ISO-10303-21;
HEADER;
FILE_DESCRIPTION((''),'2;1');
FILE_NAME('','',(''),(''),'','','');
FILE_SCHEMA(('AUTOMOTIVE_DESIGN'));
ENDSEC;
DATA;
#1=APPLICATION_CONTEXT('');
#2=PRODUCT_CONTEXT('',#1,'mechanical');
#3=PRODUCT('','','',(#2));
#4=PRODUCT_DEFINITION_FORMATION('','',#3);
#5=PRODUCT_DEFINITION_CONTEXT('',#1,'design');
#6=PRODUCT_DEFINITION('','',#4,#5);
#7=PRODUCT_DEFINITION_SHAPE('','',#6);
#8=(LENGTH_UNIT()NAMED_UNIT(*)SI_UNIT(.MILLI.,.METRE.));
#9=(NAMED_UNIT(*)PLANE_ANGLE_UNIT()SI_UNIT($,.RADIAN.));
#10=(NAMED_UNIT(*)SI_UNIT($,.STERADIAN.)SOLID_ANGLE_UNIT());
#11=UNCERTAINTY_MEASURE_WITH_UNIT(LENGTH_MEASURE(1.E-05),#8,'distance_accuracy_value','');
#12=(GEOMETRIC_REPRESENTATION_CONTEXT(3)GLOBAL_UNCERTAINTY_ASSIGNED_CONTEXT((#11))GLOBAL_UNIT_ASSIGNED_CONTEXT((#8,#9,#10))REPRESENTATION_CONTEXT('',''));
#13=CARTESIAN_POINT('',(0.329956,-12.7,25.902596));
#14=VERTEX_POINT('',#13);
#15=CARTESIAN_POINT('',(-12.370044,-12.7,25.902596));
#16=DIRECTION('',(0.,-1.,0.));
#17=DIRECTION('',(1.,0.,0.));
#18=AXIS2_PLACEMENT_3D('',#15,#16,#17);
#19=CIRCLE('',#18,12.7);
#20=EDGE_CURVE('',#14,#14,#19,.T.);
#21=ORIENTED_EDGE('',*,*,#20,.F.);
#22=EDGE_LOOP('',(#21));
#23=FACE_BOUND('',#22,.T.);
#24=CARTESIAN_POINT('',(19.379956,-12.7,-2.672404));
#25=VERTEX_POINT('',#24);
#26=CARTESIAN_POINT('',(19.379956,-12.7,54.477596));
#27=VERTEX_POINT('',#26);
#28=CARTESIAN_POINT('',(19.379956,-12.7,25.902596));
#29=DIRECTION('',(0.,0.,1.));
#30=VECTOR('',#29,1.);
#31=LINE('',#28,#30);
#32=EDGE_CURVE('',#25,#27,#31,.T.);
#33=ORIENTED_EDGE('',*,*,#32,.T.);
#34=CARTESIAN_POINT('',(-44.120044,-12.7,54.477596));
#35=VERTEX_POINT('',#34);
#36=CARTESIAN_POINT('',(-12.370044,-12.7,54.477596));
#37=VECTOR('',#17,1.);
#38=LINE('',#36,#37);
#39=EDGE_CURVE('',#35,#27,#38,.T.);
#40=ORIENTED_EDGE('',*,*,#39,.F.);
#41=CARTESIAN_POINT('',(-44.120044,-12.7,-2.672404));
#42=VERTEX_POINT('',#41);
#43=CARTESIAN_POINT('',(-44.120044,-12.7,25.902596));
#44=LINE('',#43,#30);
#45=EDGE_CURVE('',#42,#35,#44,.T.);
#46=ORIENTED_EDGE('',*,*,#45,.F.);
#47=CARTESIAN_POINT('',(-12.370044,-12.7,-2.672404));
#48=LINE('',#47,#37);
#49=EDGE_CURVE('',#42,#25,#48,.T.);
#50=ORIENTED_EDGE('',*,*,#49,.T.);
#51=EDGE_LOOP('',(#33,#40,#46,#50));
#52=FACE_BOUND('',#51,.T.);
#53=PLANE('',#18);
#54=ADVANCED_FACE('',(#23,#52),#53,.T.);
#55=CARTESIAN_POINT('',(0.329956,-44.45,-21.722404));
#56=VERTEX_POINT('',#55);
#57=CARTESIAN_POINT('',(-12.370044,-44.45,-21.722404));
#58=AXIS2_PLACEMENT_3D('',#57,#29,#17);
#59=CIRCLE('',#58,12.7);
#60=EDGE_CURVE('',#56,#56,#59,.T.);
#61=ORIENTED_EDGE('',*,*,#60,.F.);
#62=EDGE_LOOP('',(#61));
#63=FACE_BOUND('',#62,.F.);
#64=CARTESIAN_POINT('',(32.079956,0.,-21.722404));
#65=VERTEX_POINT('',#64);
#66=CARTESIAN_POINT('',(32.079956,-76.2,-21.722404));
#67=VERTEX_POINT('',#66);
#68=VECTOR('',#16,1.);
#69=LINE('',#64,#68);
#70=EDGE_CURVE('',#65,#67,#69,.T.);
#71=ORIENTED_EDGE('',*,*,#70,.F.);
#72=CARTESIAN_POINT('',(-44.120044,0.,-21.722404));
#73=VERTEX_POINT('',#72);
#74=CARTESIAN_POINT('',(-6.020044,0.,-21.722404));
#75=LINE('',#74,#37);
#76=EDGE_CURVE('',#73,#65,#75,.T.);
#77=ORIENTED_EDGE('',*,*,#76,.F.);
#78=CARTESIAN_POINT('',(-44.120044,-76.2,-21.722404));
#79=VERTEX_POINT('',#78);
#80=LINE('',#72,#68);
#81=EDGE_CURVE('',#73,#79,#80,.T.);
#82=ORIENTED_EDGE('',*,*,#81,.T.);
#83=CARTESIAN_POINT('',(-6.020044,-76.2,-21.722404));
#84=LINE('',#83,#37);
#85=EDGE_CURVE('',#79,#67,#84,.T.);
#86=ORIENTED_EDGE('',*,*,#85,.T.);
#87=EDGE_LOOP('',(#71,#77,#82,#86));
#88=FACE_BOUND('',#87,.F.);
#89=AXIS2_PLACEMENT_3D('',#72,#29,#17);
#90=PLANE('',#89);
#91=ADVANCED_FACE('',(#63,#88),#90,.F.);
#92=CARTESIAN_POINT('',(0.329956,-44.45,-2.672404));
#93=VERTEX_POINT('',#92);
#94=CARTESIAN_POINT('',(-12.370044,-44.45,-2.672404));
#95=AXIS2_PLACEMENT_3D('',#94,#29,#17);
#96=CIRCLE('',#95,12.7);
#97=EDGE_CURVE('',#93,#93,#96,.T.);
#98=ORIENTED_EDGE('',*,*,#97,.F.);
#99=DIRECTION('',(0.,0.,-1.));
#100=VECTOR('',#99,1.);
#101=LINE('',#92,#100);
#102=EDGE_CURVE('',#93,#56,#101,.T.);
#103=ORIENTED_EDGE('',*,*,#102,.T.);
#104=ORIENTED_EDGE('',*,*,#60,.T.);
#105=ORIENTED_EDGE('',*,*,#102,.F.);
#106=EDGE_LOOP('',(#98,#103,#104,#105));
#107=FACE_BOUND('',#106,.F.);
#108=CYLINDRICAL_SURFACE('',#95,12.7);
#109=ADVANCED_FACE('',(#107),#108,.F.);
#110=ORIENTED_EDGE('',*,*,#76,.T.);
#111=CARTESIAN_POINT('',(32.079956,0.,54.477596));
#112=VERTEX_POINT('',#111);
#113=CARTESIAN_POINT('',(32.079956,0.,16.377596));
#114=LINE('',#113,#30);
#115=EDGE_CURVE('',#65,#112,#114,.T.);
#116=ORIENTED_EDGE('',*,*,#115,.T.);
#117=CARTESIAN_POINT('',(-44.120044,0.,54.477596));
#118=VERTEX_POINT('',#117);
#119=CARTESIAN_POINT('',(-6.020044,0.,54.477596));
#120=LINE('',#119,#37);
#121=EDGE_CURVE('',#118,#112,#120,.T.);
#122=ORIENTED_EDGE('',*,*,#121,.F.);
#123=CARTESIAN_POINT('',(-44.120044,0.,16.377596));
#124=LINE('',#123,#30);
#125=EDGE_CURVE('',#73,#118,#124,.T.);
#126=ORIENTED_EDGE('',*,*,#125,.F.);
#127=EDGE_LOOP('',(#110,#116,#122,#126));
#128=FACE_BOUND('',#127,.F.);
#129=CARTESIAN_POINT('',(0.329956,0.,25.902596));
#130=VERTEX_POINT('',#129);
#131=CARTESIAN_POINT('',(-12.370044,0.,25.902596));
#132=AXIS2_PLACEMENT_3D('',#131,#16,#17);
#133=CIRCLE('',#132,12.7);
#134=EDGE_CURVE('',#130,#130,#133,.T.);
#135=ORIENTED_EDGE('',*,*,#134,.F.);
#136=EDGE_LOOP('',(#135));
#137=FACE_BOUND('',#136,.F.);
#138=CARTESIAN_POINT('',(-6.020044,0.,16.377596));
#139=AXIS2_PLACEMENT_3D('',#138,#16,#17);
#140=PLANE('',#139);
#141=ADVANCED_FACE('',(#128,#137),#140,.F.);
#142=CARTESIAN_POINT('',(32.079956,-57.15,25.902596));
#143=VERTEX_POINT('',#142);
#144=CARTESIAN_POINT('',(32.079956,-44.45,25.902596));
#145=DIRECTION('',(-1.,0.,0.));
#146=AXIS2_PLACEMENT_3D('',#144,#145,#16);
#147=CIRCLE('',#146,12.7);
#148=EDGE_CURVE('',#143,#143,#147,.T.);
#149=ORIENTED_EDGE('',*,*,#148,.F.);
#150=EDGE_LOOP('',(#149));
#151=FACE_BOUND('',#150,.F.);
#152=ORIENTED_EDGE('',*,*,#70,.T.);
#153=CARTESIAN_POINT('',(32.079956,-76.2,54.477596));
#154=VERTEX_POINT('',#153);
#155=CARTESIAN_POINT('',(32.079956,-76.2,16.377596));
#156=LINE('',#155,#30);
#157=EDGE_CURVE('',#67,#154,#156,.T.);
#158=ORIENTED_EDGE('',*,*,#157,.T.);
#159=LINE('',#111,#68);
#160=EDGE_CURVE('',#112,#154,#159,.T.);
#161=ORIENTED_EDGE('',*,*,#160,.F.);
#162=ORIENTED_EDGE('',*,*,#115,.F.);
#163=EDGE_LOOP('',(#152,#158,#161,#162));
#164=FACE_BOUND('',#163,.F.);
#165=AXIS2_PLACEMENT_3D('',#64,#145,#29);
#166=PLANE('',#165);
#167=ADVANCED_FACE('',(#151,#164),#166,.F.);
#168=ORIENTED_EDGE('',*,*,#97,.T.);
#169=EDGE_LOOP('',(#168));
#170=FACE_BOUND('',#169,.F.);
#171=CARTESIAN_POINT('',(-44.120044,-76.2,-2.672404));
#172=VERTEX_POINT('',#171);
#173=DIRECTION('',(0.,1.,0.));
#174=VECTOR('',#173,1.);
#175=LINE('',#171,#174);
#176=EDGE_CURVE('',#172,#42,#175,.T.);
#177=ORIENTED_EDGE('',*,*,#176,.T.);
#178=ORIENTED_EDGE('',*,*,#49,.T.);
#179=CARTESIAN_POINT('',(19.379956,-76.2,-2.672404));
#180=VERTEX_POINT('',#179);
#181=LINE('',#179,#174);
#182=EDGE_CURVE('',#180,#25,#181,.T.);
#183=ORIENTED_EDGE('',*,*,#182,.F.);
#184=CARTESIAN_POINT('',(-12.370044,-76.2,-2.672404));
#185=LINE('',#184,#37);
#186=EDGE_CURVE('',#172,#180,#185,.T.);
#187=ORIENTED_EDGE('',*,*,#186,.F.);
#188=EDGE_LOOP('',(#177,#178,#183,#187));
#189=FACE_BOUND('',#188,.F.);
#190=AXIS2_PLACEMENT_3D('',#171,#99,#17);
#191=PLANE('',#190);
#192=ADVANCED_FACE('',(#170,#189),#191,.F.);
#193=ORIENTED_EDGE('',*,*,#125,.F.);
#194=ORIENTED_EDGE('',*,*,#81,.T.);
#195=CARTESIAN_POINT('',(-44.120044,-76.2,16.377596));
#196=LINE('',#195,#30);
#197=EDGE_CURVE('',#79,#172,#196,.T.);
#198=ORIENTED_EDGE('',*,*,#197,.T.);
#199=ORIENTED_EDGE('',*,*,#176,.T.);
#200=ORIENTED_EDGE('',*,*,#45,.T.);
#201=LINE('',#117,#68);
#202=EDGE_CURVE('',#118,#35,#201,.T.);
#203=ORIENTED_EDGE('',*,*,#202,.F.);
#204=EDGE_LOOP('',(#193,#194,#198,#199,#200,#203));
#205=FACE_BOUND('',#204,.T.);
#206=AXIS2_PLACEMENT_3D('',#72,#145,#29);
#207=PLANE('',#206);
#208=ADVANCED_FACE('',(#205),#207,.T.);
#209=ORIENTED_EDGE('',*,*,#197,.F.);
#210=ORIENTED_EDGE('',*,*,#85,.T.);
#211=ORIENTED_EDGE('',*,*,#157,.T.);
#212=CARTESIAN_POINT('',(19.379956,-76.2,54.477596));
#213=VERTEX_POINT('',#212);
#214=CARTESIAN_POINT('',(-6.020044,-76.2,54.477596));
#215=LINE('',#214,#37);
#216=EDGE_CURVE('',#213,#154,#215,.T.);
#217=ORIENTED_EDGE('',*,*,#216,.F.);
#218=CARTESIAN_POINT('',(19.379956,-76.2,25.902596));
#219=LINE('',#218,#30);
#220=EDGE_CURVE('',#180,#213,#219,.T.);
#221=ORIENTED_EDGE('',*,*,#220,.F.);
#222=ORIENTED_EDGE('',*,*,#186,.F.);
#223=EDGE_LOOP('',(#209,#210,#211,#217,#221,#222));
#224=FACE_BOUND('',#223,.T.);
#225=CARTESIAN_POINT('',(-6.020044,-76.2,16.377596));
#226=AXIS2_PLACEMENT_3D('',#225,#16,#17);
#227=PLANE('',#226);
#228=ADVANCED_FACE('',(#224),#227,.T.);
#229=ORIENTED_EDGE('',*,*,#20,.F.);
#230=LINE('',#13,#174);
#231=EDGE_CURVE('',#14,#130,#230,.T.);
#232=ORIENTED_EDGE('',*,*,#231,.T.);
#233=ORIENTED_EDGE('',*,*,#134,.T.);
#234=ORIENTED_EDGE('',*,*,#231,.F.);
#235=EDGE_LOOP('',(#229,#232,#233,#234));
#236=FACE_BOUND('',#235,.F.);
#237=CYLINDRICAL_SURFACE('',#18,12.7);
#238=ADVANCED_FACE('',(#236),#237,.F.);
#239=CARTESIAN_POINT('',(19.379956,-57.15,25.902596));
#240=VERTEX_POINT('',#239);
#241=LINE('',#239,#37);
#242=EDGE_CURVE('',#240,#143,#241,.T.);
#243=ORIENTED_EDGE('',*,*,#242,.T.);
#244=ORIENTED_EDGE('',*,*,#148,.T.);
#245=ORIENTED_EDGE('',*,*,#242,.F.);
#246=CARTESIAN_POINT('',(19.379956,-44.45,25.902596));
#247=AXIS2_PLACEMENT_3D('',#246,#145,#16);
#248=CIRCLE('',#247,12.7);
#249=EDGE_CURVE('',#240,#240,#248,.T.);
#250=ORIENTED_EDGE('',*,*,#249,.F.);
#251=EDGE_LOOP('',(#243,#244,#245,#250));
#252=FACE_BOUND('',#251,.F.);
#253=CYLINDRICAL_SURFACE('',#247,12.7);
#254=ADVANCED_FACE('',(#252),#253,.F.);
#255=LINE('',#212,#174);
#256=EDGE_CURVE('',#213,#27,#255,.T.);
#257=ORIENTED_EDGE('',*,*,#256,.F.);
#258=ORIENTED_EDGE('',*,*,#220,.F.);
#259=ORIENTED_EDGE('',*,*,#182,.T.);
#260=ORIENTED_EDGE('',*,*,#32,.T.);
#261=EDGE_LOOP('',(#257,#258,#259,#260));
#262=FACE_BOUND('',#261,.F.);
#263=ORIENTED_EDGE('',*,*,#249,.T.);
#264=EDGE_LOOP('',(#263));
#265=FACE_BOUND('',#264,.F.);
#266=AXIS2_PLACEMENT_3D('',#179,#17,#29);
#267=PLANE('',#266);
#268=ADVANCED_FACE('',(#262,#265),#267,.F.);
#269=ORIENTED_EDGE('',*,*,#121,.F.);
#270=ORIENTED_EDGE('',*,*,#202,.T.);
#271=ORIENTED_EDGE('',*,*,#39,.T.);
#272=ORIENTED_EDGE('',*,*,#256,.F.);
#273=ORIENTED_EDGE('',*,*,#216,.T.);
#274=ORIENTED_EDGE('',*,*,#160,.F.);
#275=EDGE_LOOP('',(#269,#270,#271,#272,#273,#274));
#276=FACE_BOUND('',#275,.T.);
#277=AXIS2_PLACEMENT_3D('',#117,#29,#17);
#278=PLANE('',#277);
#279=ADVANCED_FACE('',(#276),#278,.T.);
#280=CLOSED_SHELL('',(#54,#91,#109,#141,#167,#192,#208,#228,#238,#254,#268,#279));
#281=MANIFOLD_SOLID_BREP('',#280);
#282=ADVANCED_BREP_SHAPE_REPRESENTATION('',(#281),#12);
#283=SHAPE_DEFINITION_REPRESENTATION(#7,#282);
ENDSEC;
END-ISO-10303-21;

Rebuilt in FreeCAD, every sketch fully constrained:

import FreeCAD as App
import Part
import Sketcher

V = App.Vector
Q = App.Units.Quantity


def add_polygon(sketch, points):
    """Adds a closed chain of lines whose ends are joined by coincident constraints."""
    first, n = sketch.GeometryCount, len(points)
    for a, b in zip(points, points[1:] + points[:1]):
        sketch.addGeometry(Part.LineSegment(App.Vector(*a, 0), App.Vector(*b, 0)), False)
    for i in range(n):
        sketch.addConstraint(Sketcher.Constraint("Coincident", first + i, 2, first + (i + 1) % n, 1))

doc = App.newDocument("Part")
body = doc.addObject("PartDesign::Body", "Body")

sketch1 = doc.addObject("Sketcher::SketchObject", "Sketch")
body.addObject(sketch1)
sketch1.AttachmentSupport = (doc.XZ_Plane, [""])
sketch1.MapMode = "FlatFace"
add_polygon(sketch1, [(-44, 54), (-44, -22), (32, -22), (32, 54)])
sketch1.addConstraint(Sketcher.Constraint("Vertical", 0))
sketch1.addConstraint(Sketcher.Constraint("Horizontal", 1))
sketch1.addConstraint(Sketcher.Constraint("Vertical", 2))
sketch1.addConstraint(Sketcher.Constraint("Horizontal", 3))
sketch1.addConstraint(Sketcher.Constraint("Equal", 3, 0))
sketch1.addConstraint(Sketcher.Constraint("DistanceX", 1, 1, 1, 2, Q("3 in")))
sketch1.addConstraint(Sketcher.Constraint("DistanceX", 0, 2, -1, 1, Q("44.120044 mm")))
sketch1.addConstraint(Sketcher.Constraint("DistanceY", 0, 2, -1, 1, Q("21.722404 mm")))
pad1 = doc.addObject("PartDesign::Pad", "Pad")
body.addObject(pad1)
pad1.Profile = sketch1
pad1.Length = Q("3 in")

sketch2 = doc.addObject("Sketcher::SketchObject", "Sketch001")
body.addObject(sketch2)
sketch2.AttachmentSupport = (doc.XZ_Plane, [""])
sketch2.MapMode = "FlatFace"
sketch2.AttachmentOffset = App.Placement(V(0, 0, 3 * 25.4), App.Rotation())
add_polygon(sketch2, [(-44, 54), (-44, -3), (19, -3), (19, 54)])
sketch2.addConstraint(Sketcher.Constraint("Vertical", 0))
sketch2.addConstraint(Sketcher.Constraint("Horizontal", 1))
sketch2.addConstraint(Sketcher.Constraint("Vertical", 2))
sketch2.addConstraint(Sketcher.Constraint("Horizontal", 3))
sketch2.addConstraint(Sketcher.Constraint("DistanceX", 1, 1, 1, 2, Q("2.5 in")))
sketch2.addConstraint(Sketcher.Constraint("DistanceY", 0, 2, 0, 1, Q("2.25 in")))
sketch2.addConstraint(Sketcher.Constraint("DistanceX", 0, 2, -1, 1, Q("44.120044 mm")))
sketch2.addConstraint(Sketcher.Constraint("DistanceY", 0, 2, -1, 1, Q("2.672404 mm")))
pocket1 = doc.addObject("PartDesign::Pocket", "Pocket")
body.addObject(pocket1)
pocket1.Profile = sketch2
pocket1.Length = Q("2.5 in")

sketch3 = doc.addObject("Sketcher::SketchObject", "Sketch002")
body.addObject(sketch3)
sketch3.AttachmentSupport = (doc.YZ_Plane, [""])
sketch3.MapMode = "FlatFace"
sketch3.AttachmentOffset = App.Placement(V(0, 0, 19.379956), App.Rotation())
sketch3.addGeometry(Part.Circle(V(-44, 26, 0), V(0, 0, 1), 13), False)
sketch3.addConstraint(Sketcher.Constraint("Diameter", 0, Q("1 in")))
sketch3.addConstraint(Sketcher.Constraint("DistanceX", 0, 3, -1, 1, Q("1.75 in")))
sketch3.addConstraint(Sketcher.Constraint("DistanceY", -1, 1, 0, 3, Q("25.902596 mm")))
pocket2 = doc.addObject("PartDesign::Pocket", "Pocket001")
body.addObject(pocket2)
pocket2.Profile = sketch3
pocket2.Length = Q("1 in")
pocket2.Reversed = True

sketch4 = doc.addObject("Sketcher::SketchObject", "Sketch003")
body.addObject(sketch4)
sketch4.AttachmentSupport = (doc.XZ_Plane, [""])
sketch4.MapMode = "FlatFace"
sketch4.AttachmentOffset = App.Placement(V(0, 0, 0.5 * 25.4), App.Rotation())
sketch4.addGeometry(Part.Circle(V(-12, 26, 0), V(0, 0, 1), 13), False)
sketch4.addConstraint(Sketcher.Constraint("Diameter", 0, Q("1 in")))
sketch4.addConstraint(Sketcher.Constraint("DistanceX", 0, 3, -1, 1, Q("12.370044 mm")))
sketch4.addConstraint(Sketcher.Constraint("DistanceY", -1, 1, 0, 3, Q("25.902596 mm")))
pocket3 = doc.addObject("PartDesign::Pocket", "Pocket002")
body.addObject(pocket3)
pocket3.Profile = sketch4
pocket3.Length = Q("1 in")

sketch5 = doc.addObject("Sketcher::SketchObject", "Sketch004")
body.addObject(sketch5)
sketch5.AttachmentSupport = (doc.XY_Plane, [""])
sketch5.MapMode = "FlatFace"
sketch5.AttachmentOffset = App.Placement(V(0, 0, -2.672404), App.Rotation())
sketch5.addGeometry(Part.Circle(V(-12, -44, 0), V(0, 0, 1), 13), False)
sketch5.addConstraint(Sketcher.Constraint("Diameter", 0, Q("1 in")))
sketch5.addConstraint(Sketcher.Constraint("DistanceY", 0, 3, -1, 1, Q("1.75 in")))
sketch5.addConstraint(Sketcher.Constraint("DistanceX", 0, 3, -1, 1, Q("12.370044 mm")))
pocket4 = doc.addObject("PartDesign::Pocket", "Pocket003")
body.addObject(pocket4)
pocket4.Profile = sketch5
pocket4.Length = Q("1 in")

doc.recompute()
